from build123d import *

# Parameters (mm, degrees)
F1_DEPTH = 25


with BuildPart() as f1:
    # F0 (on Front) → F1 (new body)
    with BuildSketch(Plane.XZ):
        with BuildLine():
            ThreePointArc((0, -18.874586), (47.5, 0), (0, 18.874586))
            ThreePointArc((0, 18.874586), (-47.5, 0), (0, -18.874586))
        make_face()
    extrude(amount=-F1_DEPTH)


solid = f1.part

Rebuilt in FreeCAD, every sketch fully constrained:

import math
import FreeCAD as App
import Part
import Sketcher
Q = App.Units.Quantity

doc = App.newDocument("Part")
body = doc.addObject("PartDesign::Body", "Body")

# Sketch on XZ plane
sketch1 = body.newObject("Sketcher::SketchObject", "Sketch")
sketch1.AttachmentSupport = (doc.getObject("XZ_Plane"), [""])
sketch1.MapMode = "FlatFace"
sketch1.addGeometry([
    Part.ArcOfCircle(Part.Circle(App.Vector(20, 0, 0), App.Vector(0, 0, 1), 27), math.radians(-137), math.radians(137)),
    Part.ArcOfCircle(Part.Circle(App.Vector(-20, 0, 0), App.Vector(0, 0, 1), 27), math.radians(43), math.radians(317)),
], False)
sketch1.addConstraint([
    Sketcher.Constraint("Coincident", 0, 1, 1, 2),
    Sketcher.Constraint("Coincident", 1, 1, 0, 2),
    Sketcher.Constraint("Equal", 0, 1),
    Sketcher.Constraint("Symmetric", 0, 3, 1, 3, -1, 1),
    Sketcher.Constraint("PointOnObject", 0, 3, -1),
    Sketcher.Constraint("Radius", 0, Q("27.5 mm")),
    Sketcher.Constraint("DistanceX", -1, 1, 0, 3, Q("20 mm")),
])
pad1 = body.newObject("PartDesign::Pad", "Pad")
pad1.Profile = sketch1
pad1.Length = 25
pad1.Reversed = True

doc.recompute()
